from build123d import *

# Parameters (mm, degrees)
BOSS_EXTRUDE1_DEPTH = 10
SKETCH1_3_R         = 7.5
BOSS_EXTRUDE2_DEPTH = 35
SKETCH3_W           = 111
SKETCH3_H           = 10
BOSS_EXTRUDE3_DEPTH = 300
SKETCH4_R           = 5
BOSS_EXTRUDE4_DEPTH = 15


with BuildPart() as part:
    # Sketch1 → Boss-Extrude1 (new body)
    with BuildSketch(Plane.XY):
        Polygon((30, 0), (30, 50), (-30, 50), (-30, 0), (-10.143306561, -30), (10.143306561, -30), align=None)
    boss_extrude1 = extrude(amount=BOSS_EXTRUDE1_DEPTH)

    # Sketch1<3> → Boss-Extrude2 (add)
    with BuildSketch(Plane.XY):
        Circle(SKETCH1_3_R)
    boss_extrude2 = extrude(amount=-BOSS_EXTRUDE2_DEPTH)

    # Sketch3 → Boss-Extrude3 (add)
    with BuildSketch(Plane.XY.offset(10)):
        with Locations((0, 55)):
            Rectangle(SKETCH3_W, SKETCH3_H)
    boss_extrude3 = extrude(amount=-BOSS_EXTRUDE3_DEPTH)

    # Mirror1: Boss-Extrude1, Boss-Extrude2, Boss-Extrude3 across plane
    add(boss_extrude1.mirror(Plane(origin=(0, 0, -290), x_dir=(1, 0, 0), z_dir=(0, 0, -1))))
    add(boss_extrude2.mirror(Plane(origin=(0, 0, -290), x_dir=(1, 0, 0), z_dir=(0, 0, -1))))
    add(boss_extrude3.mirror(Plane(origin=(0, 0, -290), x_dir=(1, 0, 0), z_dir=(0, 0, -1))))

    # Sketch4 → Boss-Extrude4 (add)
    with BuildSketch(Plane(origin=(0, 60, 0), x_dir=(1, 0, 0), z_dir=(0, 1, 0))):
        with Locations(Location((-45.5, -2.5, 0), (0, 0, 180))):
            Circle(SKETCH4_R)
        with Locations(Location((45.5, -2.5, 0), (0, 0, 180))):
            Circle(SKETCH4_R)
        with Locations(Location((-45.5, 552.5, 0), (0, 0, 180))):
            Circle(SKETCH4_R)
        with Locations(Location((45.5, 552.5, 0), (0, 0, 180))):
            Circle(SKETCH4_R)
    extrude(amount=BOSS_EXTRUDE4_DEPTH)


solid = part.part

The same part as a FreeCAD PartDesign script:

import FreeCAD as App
import Part
import Sketcher


def add_polygon(sketch, points):
    """Adds a closed chain of lines whose ends are joined by coincident constraints."""
    first, n = sketch.GeometryCount, len(points)
    for a, b in zip(points, points[1:] + points[:1]):
        sketch.addGeometry(Part.LineSegment(App.Vector(*a, 0), App.Vector(*b, 0)), False)
    for i in range(n):
        sketch.addConstraint(Sketcher.Constraint("Coincident", first + i, 2, first + (i + 1) % n, 1))

doc = App.newDocument("Part")
body = doc.addObject("PartDesign::Body", "Body")

sketch1 = doc.addObject("Sketcher::SketchObject", "Sketch")
body.addObject(sketch1)
sketch1.AttachmentSupport = (doc.XY_Plane, [""])
sketch1.MapMode = "FlatFace"
add_polygon(sketch1, [(30, 0), (30, 50), (-30, 50), (-30, 0), (-10, -30), (10, -30)])
sketch1.addConstraint([
    Sketcher.Constraint("Vertical", 0),
    Sketcher.Constraint("Horizontal", 1),
    Sketcher.Constraint("Vertical", 2),
    Sketcher.Constraint("Horizontal", 4),
    Sketcher.Constraint("Symmetric", 2, 2, 5, 2, -1, 1),
    Sketcher.Constraint("PointOnObject", 2, 2, -1),
    Sketcher.Constraint("Equal", 3, 5),
    Sketcher.Constraint("DistanceX", 1, 2, 1, 1, 60.0),
    Sketcher.Constraint("DistanceY", 0, 1, 0, 2, 50.0),
    Sketcher.Constraint("DistanceY", 3, 2, -1, 1, 30.0),
    Sketcher.Constraint("Distance", 3, 35.976218),
])
pad1 = doc.addObject("PartDesign::Pad", "Pad")
body.addObject(pad1)
pad1.Profile = sketch1
pad1.Length = 10

sketch2 = doc.addObject("Sketcher::SketchObject", "Sketch001")
body.addObject(sketch2)
sketch2.AttachmentSupport = (doc.XY_Plane, [""])
sketch2.MapMode = "FlatFace"
sketch2.addGeometry(Part.Circle(App.Vector(0, 0, 0), App.Vector(0, 0, 1), 8), False)
sketch2.addConstraint([
    Sketcher.Constraint("Coincident", 0, 3, -1, 1),
    Sketcher.Constraint("Diameter", 0, 15.0),
])
pad2 = doc.addObject("PartDesign::Pad", "Pad001")
body.addObject(pad2)
pad2.Profile = sketch2
pad2.Length = 35
pad2.Reversed = True

sketch3 = doc.addObject("Sketcher::SketchObject", "Sketch002")
body.addObject(sketch3)
sketch3.AttachmentSupport = (doc.XY_Plane, [""])
sketch3.MapMode = "FlatFace"
sketch3.AttachmentOffset = App.Placement(App.Vector(0, 0, 10), App.Rotation())
add_polygon(sketch3, [(-56, 60), (-56, 50), (56, 50), (56, 60)])
sketch3.addConstraint([
    Sketcher.Constraint("Vertical", 0),
    Sketcher.Constraint("Horizontal", 1),
    Sketcher.Constraint("Vertical", 2),
    Sketcher.Constraint("Horizontal", 3),
    Sketcher.Constraint("DistanceX", 1, 1, 1, 2, 111.0),
    Sketcher.Constraint("DistanceY", 0, 2, 0, 1, 10.0),
    Sketcher.Constraint("DistanceY", -1, 1, 0, 2, 50.0),
    Sketcher.Constraint("DistanceX", 0, 2, -1, 1, 55.5),
])
pad3 = doc.addObject("PartDesign::Pad", "Pad002")
body.addObject(pad3)
pad3.Profile = sketch3
pad3.Length = 300
pad3.Reversed = True
doc.recompute()

datumplane = doc.addObject("PartDesign::Plane", "DatumPlane")
body.addObject(datumplane)
datumplane.AttachmentSupport = (doc.XY_Plane, [""])
datumplane.MapMode = "FlatFace"
datumplane.AttachmentOffset = App.Placement(App.Vector(0, 0, -290), App.Rotation())
mirrored = doc.addObject("PartDesign::Mirrored", "Mirrored")
body.addObject(mirrored)
mirrored.Originals = [pad1, pad2, pad3]
mirrored.MirrorPlane = (datumplane, [""])
body.Tip = mirrored

sketch4 = doc.addObject("Sketcher::SketchObject", "Sketch003")
body.addObject(sketch4)
sketch4.AttachmentSupport = (doc.XZ_Plane, [""])
sketch4.MapMode = "FlatFace"
sketch4.AttachmentOffset = App.Placement(App.Vector(0, 0, -60), App.Rotation())
sketch4.addGeometry([
    Part.Circle(App.Vector(-46, 2, 0), App.Vector(0, 0, 1), 5),
    Part.Circle(App.Vector(46, 2, 0), App.Vector(0, 0, 1), 5),
    Part.Circle(App.Vector(-46, -552, 0), App.Vector(0, 0, 1), 5),
    Part.Circle(App.Vector(46, -552, 0), App.Vector(0, 0, 1), 5),
], False)
sketch4.addConstraint([
    Sketcher.Constraint("Equal", 0, 1),
    Sketcher.Constraint("Equal", 1, 2),
    Sketcher.Constraint("Equal", 2, 3),
    Sketcher.Constraint("Symmetric", 0, 3, 1, 3, -2),
    Sketcher.Constraint("Symmetric", 2, 3, 3, 3, -2),
    Sketcher.Constraint("Vertical", 0, 3, 2, 3),
    Sketcher.Constraint("Diameter", 0, 10.0),
    Sketcher.Constraint("DistanceX", 0, 3, 1, 3, 91.0),
    Sketcher.Constraint("DistanceY", 2, 3, 0, 3, 555.0),
    Sketcher.Constraint("DistanceY", -1, 1, 0, 3, 2.5),
])
pad4 = doc.addObject("PartDesign::Pad", "Pad003")
body.addObject(pad4)
pad4.Profile = sketch4
pad4.Length = 15
pad4.Reversed = True

doc.recompute()
